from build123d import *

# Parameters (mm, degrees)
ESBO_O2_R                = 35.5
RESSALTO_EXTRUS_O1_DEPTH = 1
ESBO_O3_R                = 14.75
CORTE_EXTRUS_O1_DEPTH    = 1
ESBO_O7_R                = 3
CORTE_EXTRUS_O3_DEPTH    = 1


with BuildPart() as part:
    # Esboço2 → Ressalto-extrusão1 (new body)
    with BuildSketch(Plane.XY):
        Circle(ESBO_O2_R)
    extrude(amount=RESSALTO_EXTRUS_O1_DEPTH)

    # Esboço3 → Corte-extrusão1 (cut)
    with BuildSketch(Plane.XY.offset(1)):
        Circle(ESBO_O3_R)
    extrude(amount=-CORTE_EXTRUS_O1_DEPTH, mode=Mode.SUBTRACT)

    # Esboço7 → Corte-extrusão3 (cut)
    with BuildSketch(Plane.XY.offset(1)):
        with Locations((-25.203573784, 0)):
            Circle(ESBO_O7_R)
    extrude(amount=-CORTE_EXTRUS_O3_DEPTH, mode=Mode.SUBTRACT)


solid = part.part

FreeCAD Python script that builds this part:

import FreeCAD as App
import Part
import Sketcher

V = App.Vector
Q = App.Units.Quantity

doc = App.newDocument("Part")
params = doc.addObject("Spreadsheet::Sheet", "Params")
for row, (alias, value) in enumerate([
    ("sketch1_diameter", "71 mm"),
    ("pad1_length", "1 mm"),
    ("sketch2_diameter", "29.5 mm"),
    ("pocket1_length", "1 mm"),
    ("sketch3_diameter", "6 mm"),
    ("pocket2_length", "1 mm"),
], start=1):
    params.set(f"A{row}", alias)
    params.set(f"B{row}", "=" + value)
    params.setAlias(f"B{row}", alias)

body = doc.addObject("PartDesign::Body", "Body")

# Sketch on XY plane
sketch1 = body.newObject("Sketcher::SketchObject", "Sketch")
sketch1.AttachmentSupport = (doc.getObject("XY_Plane"), [""])
sketch1.MapMode = "FlatFace"
sketch1.addGeometry(Part.Circle(V(0, 0, 0), V(0, 0, 1), 36), False)
sketch1.addConstraint([
    Sketcher.Constraint("Coincident", 0, 3, -1, 1),
    Sketcher.Constraint("Diameter", 0, Q("71 mm")),
])
sketch1.setExpression("Constraints[1]", "Params.sketch1_diameter")
pad1 = body.newObject("PartDesign::Pad", "Pad")
pad1.Profile = sketch1
pad1.setExpression("Length", "Params.pad1_length")

# Sketch on XY plane
sketch2 = body.newObject("Sketcher::SketchObject", "Sketch001")
sketch2.AttachmentSupport = (doc.getObject("XY_Plane"), [""])
sketch2.MapMode = "FlatFace"
sketch2.AttachmentOffset = App.Placement(V(0, 0, 1), App.Rotation())
sketch2.addGeometry(Part.Circle(V(0, 0, 0), V(0, 0, 1), 15), False)
sketch2.addConstraint([
    Sketcher.Constraint("Coincident", 0, 3, -1, 1),
    Sketcher.Constraint("Diameter", 0, Q("29.5 mm")),
])
sketch2.setExpression("Constraints[1]", "Params.sketch2_diameter")
pocket1 = body.newObject("PartDesign::Pocket", "Pocket")
pocket1.Profile = sketch2
pocket1.setExpression("Length", "Params.pocket1_length")

# Sketch on XY plane
sketch3 = body.newObject("Sketcher::SketchObject", "Sketch002")
sketch3.AttachmentSupport = (doc.getObject("XY_Plane"), [""])
sketch3.MapMode = "FlatFace"
sketch3.AttachmentOffset = App.Placement(V(0, 0, 1), App.Rotation())
sketch3.addGeometry(Part.Circle(V(-25.2, 0, 0), V(0, 0, 1), 3), False)
sketch3.addConstraint([
    Sketcher.Constraint("PointOnObject", 0, 3, -1),
    Sketcher.Constraint("Diameter", 0, Q("6 mm")),
    Sketcher.Constraint("DistanceX", 0, 3, -1, 1, Q("25.203574 mm")),
])
sketch3.setExpression("Constraints[1]", "Params.sketch3_diameter")
pocket2 = body.newObject("PartDesign::Pocket", "Pocket001")
pocket2.Profile = sketch3
pocket2.setExpression("Length", "Params.pocket2_length")

doc.recompute()
